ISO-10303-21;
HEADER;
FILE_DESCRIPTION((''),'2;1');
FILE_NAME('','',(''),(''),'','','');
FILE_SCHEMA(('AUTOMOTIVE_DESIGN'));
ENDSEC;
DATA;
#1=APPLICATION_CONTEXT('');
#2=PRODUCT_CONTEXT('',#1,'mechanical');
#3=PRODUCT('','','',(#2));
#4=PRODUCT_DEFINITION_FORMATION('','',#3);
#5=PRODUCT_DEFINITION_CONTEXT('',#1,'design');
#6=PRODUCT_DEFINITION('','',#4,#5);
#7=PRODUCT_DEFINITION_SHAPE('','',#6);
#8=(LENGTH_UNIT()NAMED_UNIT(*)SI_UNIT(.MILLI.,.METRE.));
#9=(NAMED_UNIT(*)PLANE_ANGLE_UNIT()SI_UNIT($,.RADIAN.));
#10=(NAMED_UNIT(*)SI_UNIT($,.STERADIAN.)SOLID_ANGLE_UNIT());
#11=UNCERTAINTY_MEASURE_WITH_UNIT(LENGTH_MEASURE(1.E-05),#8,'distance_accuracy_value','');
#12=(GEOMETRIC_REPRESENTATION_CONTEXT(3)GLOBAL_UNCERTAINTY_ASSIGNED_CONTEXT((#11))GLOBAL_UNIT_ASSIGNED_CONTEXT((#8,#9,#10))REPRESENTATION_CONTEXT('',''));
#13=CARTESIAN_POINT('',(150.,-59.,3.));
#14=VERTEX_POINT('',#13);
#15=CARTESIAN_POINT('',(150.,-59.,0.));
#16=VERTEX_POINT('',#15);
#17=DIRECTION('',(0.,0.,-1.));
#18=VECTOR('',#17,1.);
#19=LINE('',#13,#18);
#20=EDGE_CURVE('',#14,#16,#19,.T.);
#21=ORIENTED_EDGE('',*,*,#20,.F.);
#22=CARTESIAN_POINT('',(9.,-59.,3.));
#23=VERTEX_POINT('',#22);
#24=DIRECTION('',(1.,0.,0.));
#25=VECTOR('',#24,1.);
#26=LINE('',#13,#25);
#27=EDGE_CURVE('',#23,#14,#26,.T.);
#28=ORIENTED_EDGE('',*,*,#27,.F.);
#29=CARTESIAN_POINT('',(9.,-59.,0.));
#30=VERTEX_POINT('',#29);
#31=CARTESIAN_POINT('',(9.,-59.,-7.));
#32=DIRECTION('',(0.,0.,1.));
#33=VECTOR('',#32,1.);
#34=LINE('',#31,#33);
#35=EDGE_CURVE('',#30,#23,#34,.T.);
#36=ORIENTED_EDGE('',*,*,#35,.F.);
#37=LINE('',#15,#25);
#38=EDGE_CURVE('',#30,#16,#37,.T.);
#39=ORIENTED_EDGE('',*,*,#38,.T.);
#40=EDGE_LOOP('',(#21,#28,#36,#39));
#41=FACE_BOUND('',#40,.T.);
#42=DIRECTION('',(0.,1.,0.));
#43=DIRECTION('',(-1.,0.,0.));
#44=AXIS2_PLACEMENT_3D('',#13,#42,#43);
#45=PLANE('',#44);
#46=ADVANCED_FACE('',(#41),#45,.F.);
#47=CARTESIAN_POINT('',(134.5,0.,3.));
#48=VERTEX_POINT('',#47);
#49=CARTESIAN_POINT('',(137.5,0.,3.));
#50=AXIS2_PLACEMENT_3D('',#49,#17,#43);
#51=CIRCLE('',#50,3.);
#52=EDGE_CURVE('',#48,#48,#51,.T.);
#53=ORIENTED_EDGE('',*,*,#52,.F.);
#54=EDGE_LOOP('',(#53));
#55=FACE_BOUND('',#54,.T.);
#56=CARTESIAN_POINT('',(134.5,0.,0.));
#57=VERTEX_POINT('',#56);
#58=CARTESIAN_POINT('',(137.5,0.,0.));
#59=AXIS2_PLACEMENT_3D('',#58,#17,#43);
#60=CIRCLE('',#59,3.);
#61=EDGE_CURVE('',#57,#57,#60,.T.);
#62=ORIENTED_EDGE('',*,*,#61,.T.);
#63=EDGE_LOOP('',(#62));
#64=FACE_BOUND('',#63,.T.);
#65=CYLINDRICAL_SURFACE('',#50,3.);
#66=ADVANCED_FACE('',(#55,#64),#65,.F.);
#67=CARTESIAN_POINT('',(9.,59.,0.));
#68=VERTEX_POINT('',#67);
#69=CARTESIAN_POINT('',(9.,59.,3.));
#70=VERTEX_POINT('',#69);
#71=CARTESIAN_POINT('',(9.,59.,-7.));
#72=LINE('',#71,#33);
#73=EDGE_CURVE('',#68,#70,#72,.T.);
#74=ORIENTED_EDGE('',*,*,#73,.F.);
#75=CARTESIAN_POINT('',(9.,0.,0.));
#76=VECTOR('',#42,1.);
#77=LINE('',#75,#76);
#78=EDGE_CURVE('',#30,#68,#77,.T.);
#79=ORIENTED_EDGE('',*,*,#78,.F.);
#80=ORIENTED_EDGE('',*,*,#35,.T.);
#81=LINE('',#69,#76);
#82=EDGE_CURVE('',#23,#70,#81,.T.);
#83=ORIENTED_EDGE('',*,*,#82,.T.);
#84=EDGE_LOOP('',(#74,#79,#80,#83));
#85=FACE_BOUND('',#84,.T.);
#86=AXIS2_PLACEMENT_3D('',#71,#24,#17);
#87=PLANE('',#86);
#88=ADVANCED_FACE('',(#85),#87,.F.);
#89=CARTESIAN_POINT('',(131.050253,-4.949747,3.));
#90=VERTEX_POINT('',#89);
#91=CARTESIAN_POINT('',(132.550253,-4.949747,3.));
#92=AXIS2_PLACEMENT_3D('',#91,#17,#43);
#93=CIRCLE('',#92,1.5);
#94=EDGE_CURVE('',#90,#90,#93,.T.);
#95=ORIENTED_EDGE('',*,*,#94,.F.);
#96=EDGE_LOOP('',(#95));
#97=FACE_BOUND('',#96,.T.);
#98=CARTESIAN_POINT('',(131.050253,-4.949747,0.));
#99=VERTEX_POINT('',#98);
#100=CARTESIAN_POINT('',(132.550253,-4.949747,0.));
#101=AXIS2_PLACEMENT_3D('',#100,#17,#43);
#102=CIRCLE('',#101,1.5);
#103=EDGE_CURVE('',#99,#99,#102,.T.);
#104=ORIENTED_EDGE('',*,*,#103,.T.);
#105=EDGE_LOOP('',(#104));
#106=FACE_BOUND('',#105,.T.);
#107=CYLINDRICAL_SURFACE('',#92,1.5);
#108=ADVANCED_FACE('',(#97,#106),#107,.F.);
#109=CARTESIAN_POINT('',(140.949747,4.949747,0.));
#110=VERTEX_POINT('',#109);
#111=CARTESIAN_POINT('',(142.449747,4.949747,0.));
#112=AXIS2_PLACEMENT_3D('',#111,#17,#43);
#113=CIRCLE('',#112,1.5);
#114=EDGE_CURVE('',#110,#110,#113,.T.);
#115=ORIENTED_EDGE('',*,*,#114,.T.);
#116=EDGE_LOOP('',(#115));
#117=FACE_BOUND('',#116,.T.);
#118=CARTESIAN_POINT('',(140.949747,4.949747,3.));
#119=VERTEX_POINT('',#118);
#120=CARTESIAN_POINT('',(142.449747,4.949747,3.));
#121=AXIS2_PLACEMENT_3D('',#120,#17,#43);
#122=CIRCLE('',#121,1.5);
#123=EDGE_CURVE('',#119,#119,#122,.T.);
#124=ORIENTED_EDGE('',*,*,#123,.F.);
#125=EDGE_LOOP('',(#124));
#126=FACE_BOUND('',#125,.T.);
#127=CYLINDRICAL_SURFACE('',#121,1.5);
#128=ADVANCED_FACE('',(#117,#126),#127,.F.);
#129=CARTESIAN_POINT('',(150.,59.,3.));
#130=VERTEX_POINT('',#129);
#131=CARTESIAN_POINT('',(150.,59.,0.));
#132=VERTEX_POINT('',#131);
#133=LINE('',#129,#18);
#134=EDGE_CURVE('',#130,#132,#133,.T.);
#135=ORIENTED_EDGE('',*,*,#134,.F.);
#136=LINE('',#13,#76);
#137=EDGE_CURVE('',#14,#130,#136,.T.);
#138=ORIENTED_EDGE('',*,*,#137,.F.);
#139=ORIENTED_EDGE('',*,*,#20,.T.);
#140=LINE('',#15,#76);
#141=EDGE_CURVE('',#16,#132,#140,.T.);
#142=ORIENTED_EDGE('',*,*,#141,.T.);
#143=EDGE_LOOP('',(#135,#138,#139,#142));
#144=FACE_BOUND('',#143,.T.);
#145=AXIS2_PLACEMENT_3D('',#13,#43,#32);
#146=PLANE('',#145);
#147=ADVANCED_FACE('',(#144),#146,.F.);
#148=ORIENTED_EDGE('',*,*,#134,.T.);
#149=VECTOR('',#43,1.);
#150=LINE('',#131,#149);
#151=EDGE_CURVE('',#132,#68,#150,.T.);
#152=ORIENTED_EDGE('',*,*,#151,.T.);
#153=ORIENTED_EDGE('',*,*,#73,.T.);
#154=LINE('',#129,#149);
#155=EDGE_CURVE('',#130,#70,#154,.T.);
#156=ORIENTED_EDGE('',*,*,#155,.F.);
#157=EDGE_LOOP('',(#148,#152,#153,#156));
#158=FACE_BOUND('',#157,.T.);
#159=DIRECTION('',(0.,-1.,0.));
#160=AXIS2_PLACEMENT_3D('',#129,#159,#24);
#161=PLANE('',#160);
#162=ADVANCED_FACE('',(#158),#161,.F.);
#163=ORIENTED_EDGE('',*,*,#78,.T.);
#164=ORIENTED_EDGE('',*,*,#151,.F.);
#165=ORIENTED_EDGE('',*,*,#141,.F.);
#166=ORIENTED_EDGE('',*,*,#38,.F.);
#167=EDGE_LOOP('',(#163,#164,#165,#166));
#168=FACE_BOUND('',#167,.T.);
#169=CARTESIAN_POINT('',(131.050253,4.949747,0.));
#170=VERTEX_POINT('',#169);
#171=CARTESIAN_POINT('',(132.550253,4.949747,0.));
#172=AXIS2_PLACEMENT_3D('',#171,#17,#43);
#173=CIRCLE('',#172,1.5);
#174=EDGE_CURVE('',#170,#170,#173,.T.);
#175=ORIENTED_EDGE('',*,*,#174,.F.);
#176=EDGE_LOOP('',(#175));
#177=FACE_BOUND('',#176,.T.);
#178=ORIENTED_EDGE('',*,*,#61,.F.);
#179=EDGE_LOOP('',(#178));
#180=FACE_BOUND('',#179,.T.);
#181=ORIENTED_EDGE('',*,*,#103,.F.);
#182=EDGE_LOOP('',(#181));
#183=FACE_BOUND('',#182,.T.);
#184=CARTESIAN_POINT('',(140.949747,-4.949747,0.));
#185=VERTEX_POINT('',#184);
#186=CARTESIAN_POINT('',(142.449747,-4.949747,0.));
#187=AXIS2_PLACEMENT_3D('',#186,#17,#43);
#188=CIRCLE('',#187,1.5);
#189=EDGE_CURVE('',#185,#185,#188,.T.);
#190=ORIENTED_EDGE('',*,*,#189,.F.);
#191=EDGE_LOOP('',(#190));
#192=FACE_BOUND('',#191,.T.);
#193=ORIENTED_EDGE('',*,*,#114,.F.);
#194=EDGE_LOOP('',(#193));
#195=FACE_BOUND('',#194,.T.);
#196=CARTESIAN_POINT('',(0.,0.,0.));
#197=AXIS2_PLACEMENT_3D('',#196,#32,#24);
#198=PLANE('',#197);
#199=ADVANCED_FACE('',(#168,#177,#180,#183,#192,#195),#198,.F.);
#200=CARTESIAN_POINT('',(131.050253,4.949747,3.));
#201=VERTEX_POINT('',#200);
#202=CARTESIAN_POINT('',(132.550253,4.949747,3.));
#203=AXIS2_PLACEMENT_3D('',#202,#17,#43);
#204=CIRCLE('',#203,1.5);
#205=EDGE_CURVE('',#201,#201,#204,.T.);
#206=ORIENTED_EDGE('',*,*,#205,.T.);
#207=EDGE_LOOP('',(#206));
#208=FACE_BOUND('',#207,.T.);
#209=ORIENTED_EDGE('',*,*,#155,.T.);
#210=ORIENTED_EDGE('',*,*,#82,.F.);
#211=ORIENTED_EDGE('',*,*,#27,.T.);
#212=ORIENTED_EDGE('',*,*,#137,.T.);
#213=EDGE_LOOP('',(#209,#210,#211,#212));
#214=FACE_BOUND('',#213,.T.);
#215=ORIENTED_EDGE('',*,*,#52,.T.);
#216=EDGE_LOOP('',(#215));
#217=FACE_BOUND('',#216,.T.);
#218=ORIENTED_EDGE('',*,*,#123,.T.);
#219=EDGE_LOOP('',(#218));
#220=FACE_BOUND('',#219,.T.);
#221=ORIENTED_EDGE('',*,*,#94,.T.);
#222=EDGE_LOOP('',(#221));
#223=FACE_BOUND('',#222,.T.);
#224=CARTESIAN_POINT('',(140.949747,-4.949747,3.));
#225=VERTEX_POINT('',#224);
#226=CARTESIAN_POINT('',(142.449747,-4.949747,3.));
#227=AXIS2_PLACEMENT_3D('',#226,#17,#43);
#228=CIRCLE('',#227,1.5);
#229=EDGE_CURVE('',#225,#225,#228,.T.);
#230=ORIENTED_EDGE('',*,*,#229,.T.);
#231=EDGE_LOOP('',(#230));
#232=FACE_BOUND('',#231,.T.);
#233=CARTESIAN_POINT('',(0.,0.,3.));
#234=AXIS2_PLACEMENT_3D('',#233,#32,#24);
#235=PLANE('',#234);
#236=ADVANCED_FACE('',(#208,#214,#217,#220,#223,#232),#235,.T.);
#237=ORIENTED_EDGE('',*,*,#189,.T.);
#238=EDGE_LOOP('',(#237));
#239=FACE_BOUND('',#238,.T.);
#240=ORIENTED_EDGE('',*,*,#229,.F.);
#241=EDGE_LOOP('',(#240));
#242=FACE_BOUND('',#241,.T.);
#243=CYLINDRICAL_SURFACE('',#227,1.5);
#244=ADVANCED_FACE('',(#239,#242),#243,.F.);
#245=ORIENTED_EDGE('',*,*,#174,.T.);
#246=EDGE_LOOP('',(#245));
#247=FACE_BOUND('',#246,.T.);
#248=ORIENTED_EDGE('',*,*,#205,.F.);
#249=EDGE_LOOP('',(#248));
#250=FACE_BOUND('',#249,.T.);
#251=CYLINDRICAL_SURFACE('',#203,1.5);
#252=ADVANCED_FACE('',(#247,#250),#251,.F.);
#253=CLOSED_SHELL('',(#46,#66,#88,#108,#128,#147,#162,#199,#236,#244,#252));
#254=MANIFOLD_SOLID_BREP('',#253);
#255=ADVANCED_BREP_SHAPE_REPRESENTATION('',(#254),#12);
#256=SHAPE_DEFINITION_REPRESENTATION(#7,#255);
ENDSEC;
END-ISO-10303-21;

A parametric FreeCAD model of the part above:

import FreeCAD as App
import Part
import Sketcher
from FreeCAD import Vector
Q = App.Units.Quantity

doc = App.newDocument("Part")
params = doc.addObject("Spreadsheet::Sheet", "Params")
for row, (alias, value) in enumerate([
    ("sketch1_width", "300 mm"),
    ("sketch1_height", "118 mm"),
    ("pad1_length", "3 mm"),
    ("sketch2_diameter", "3 mm"),
    ("sketch2_diameter2", "6 mm"),
    ("pocket1_length", "3 mm"),
    ("sketch3_width", "159 mm"),
    ("sketch3_height", "118 mm"),
    ("pocket2_length", "10 mm"),
], start=1):
    params.set(f"A{row}", alias)
    params.set(f"B{row}", "=" + value)
    params.setAlias(f"B{row}", alias)

body = doc.addObject("PartDesign::Body", "Body")

# Sketch on XY plane
sketch1 = doc.addObject("Sketcher::SketchObject", "Sketch")
body.addObject(sketch1)
sketch1.AttachmentSupport = (doc.XY_Plane, [""])
sketch1.MapMode = "FlatFace"
sketch1.addGeometry([
    Part.LineSegment(Vector(-150, 59, 0), Vector(-150, -59, 0)),
    Part.LineSegment(Vector(-150, -59, 0), Vector(150, -59, 0)),
    Part.LineSegment(Vector(150, -59, 0), Vector(150, 59, 0)),
    Part.LineSegment(Vector(150, 59, 0), Vector(-150, 59, 0)),
], False)
sketch1.addConstraint([
    Sketcher.Constraint("Coincident", 0, 2, 1, 1),
    Sketcher.Constraint("Coincident", 1, 2, 2, 1),
    Sketcher.Constraint("Coincident", 2, 2, 3, 1),
    Sketcher.Constraint("Coincident", 3, 2, 0, 1),
    Sketcher.Constraint("Vertical", 0),
    Sketcher.Constraint("Horizontal", 1),
    Sketcher.Constraint("Vertical", 2),
    Sketcher.Constraint("Horizontal", 3),
    Sketcher.Constraint("Symmetric", 0, 2, 2, 2, -1, 1),
    Sketcher.Constraint("DistanceX", 1, 1, 1, 2, Q("300 mm")),
    Sketcher.Constraint("DistanceY", 0, 2, 0, 1, Q("118 mm")),
])
sketch1.setExpression("Constraints[9]", "Params.sketch1_width")
sketch1.setExpression("Constraints[10]", "Params.sketch1_height")
pad1 = doc.addObject("PartDesign::Pad", "Pad")
body.addObject(pad1)
pad1.Profile = sketch1
pad1.setExpression("Length", "Params.pad1_length")

# Sketch on XY plane
sketch2 = doc.addObject("Sketcher::SketchObject", "Sketch001")
body.addObject(sketch2)
sketch2.AttachmentSupport = (doc.XY_Plane, [""])
sketch2.MapMode = "FlatFace"
sketch2.addGeometry([
    Part.Circle(Vector(142.4, 4.9, 0), Vector(0, 0, 1), 1.5),  # 0
    Part.Circle(Vector(132.6, 4.9, 0), Vector(0, 0, 1), 1.5),  # 1
    Part.Circle(Vector(137.5, 0, 0), Vector(0, 0, 1), 3),  # 2
    Part.Circle(Vector(142.4, -4.9, 0), Vector(0, 0, 1), 1.5),  # 3
    Part.Circle(Vector(132.6, -4.9, 0), Vector(0, 0, 1), 1.5),  # 4
], False)
sketch2.addConstraint([
    Sketcher.Constraint("Equal", 0, 1),
    Sketcher.Constraint("Equal", 1, 3),
    Sketcher.Constraint("Equal", 3, 4),
    Sketcher.Constraint("Symmetric", 0, 3, 3, 3, -1),
    Sketcher.Constraint("Symmetric", 1, 3, 4, 3, -1),
    Sketcher.Constraint("PointOnObject", 2, 3, -1),
    Sketcher.Constraint("Horizontal", 0, 3, 1, 3),
    Sketcher.Constraint("Diameter", 0, Q("3 mm")),
    Sketcher.Constraint("Diameter", 2, Q("6 mm")),
    Sketcher.Constraint("DistanceX", -1, 1, 2, 3, Q("137.5 mm")),
    Sketcher.Constraint("DistanceX", -1, 1, 0, 3, Q("142.449747 mm")),
    Sketcher.Constraint("DistanceY", -1, 1, 0, 3, Q("4.949747 mm")),
    Sketcher.Constraint("DistanceX", -1, 1, 1, 3, Q("132.550253 mm")),
])
sketch2.setExpression("Constraints[7]", "Params.sketch2_diameter")
sketch2.setExpression("Constraints[8]", "Params.sketch2_diameter2")
pocket1 = doc.addObject("PartDesign::Pocket", "Pocket")
body.addObject(pocket1)
pocket1.Profile = sketch2
pocket1.setExpression("Length", "Params.pocket1_length")
pocket1.Reversed = True

# Sketch on XY plane
sketch3 = doc.addObject("Sketcher::SketchObject", "Sketch002")
body.addObject(sketch3)
sketch3.AttachmentSupport = (doc.XY_Plane, [""])
sketch3.MapMode = "FlatFace"
sketch3.AttachmentOffset = App.Placement(Vector(0, 0, 3), App.Rotation())
sketch3.addGeometry([
    Part.LineSegment(Vector(-150, 59, 0), Vector(-150, -59, 0)),
    Part.LineSegment(Vector(-150, -59, 0), Vector(9, -59, 0)),
    Part.LineSegment(Vector(9, -59, 0), Vector(9, 59, 0)),
    Part.LineSegment(Vector(9, 59, 0), Vector(-150, 59, 0)),
], False)
sketch3.addConstraint([
    Sketcher.Constraint("Coincident", 0, 2, 1, 1),
    Sketcher.Constraint("Coincident", 1, 2, 2, 1),
    Sketcher.Constraint("Coincident", 2, 2, 3, 1),
    Sketcher.Constraint("Coincident", 3, 2, 0, 1),
    Sketcher.Constraint("Vertical", 0),
    Sketcher.Constraint("Horizontal", 1),
    Sketcher.Constraint("Vertical", 2),
    Sketcher.Constraint("Horizontal", 3),
    Sketcher.Constraint("DistanceX", 1, 1, 1, 2, Q("159 mm")),
    Sketcher.Constraint("DistanceY", 0, 2, 0, 1, Q("118 mm")),
    Sketcher.Constraint("DistanceX", 0, 2, -1, 1, Q("150 mm")),
    Sketcher.Constraint("DistanceY", 0, 2, -1, 1, Q("59 mm")),
])
sketch3.setExpression("Constraints[8]", "Params.sketch3_width")
sketch3.setExpression("Constraints[9]", "Params.sketch3_height")
pocket2 = doc.addObject("PartDesign::Pocket", "Pocket001")
body.addObject(pocket2)
pocket2.Profile = sketch3
pocket2.setExpression("Length", "Params.pocket2_length")

doc.recompute()
